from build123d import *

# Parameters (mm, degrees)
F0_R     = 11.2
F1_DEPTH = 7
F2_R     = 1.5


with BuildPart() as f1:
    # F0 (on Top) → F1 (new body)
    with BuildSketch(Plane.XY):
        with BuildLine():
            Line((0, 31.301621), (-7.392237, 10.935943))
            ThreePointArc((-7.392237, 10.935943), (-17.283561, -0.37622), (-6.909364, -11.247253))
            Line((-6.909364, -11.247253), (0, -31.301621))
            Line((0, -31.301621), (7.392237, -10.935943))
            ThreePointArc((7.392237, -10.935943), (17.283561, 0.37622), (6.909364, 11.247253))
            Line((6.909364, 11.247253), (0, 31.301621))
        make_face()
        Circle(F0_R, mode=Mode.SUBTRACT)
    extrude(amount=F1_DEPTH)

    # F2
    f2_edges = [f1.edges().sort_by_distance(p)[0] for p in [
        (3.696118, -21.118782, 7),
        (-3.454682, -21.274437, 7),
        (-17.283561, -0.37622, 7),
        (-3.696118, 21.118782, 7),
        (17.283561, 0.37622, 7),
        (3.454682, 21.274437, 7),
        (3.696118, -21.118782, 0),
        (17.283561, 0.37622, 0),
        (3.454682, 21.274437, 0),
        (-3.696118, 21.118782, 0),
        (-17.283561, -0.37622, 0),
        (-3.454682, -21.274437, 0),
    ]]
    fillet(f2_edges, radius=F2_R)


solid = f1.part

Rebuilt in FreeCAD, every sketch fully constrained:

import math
import FreeCAD as App
import Part
import Sketcher


def edges_at(feature, points):
    """Names of the edges that pass closest to the given points."""
    edges = feature.Shape.Edges
    near = lambda p: min(range(len(edges)), key=lambda i: edges[i].distToShape(Part.Vertex(*p))[0])
    return sorted({f"Edge{near(p) + 1}" for p in points})

doc = App.newDocument("Part")
params = doc.addObject("Spreadsheet::Sheet", "Params")
for row, (alias, value) in enumerate([
    ("sketch1_diameter", "22.4 mm"),
    ("pad1_length", "7 mm"),
    ("fillet_radius", "1.5 mm"),
], start=1):
    params.set(f"A{row}", alias)
    params.set(f"B{row}", "=" + value)
    params.setAlias(f"B{row}", alias)

body = doc.addObject("PartDesign::Body", "Body")

# Sketch on XY plane
sketch1 = body.newObject("Sketcher::SketchObject", "Sketch")
sketch1.AttachmentSupport = (doc.getObject("XY_Plane"), [""])
sketch1.MapMode = "FlatFace"
sketch1.addGeometry([
    Part.LineSegment(App.Vector(0, 31.301621, 0), App.Vector(-7.392237, 10.935943, 0)),  # 0
    Part.ArcOfCircle(Part.Circle(App.Vector(-6.146597, -0.133796, 0), App.Vector(0, 0, 1), 11.139602), math.radians(96.420292), math.radians(266.073687)),  # 1
    Part.LineSegment(App.Vector(-6.909364, -11.247253, 0), App.Vector(0, -31.301621, 0)),  # 2
    Part.LineSegment(App.Vector(0, -31.301621, 0), App.Vector(7.392237, -10.935943, 0)),  # 3
    Part.ArcOfCircle(Part.Circle(App.Vector(6.146597, 0.133796, 0), App.Vector(0, 0, 1), 11.139602), math.radians(-83.579708), math.radians(86.073687)),  # 4
    Part.LineSegment(App.Vector(6.909364, 11.247253, 0), App.Vector(0, 31.301621, 0)),  # 5
    Part.Circle(App.Vector(0, 0, 0), App.Vector(0, 0, 1), 11.2),  # 6
], False)
sketch1.addConstraint([
    Sketcher.Constraint("Coincident", 0, 2, 1, 1),
    Sketcher.Constraint("Coincident", 1, 2, 2, 1),
    Sketcher.Constraint("Coincident", 2, 2, 3, 1),
    Sketcher.Constraint("Coincident", 3, 2, 4, 1),
    Sketcher.Constraint("Coincident", 4, 2, 5, 1),
    Sketcher.Constraint("Coincident", 5, 2, 0, 1),
    Sketcher.Constraint("Coincident", 6, 3, -1, 1),
    Sketcher.Constraint("Equal", 1, 4),
    Sketcher.Constraint("Symmetric", 1, 3, 4, 3, -1, 1),
    Sketcher.Constraint("Symmetric", 2, 2, 5, 2, -1, 1),
    Sketcher.Constraint("PointOnObject", 2, 2, -2),
    Sketcher.Constraint("Parallel", 0, 3),
    Sketcher.Constraint("Parallel", 2, 5),
    Sketcher.Constraint("Diameter", 6, 22.4),
    Sketcher.Constraint("Radius", 1, 11.139602),
    Sketcher.Constraint("DistanceX", 1, 2, 3, 2, 14.301601),
    Sketcher.Constraint("Distance", 0, 21.66578),
    Sketcher.Constraint("DistanceY", 2, 2, -1, 1, 31.301621),
    Sketcher.Constraint("DistanceY", 1, 3, 4, 3, 0.267592),
    Sketcher.Constraint("DistanceX", 0, 2, 1, 3, 1.24564),
])
sketch1.setExpression("Constraints[13]", "Params.sketch1_diameter")
pad1 = body.newObject("PartDesign::Pad", "Pad")
pad1.Profile = sketch1
pad1.setExpression("Length", "Params.pad1_length")
doc.recompute()

fillet = body.newObject("PartDesign::Fillet", "Fillet")
fillet.Base = (pad1, edges_at(pad1, [
    (3.696, -21.119, 7),
    (-3.455, -21.274, 7),
    (-17.284, -0.376, 7),
    (-3.696, 21.119, 7),
    (17.284, 0.376, 7),
    (3.455, 21.274, 7),
    (3.696, -21.119, 0),
    (17.284, 0.376, 0),
    (3.455, 21.274, 0),
    (-3.696, 21.119, 0),
    (-17.284, -0.376, 0),
    (-3.455, -21.274, 0),
]))
fillet.setExpression("Radius", "Params.fillet_radius")

doc.recompute()
